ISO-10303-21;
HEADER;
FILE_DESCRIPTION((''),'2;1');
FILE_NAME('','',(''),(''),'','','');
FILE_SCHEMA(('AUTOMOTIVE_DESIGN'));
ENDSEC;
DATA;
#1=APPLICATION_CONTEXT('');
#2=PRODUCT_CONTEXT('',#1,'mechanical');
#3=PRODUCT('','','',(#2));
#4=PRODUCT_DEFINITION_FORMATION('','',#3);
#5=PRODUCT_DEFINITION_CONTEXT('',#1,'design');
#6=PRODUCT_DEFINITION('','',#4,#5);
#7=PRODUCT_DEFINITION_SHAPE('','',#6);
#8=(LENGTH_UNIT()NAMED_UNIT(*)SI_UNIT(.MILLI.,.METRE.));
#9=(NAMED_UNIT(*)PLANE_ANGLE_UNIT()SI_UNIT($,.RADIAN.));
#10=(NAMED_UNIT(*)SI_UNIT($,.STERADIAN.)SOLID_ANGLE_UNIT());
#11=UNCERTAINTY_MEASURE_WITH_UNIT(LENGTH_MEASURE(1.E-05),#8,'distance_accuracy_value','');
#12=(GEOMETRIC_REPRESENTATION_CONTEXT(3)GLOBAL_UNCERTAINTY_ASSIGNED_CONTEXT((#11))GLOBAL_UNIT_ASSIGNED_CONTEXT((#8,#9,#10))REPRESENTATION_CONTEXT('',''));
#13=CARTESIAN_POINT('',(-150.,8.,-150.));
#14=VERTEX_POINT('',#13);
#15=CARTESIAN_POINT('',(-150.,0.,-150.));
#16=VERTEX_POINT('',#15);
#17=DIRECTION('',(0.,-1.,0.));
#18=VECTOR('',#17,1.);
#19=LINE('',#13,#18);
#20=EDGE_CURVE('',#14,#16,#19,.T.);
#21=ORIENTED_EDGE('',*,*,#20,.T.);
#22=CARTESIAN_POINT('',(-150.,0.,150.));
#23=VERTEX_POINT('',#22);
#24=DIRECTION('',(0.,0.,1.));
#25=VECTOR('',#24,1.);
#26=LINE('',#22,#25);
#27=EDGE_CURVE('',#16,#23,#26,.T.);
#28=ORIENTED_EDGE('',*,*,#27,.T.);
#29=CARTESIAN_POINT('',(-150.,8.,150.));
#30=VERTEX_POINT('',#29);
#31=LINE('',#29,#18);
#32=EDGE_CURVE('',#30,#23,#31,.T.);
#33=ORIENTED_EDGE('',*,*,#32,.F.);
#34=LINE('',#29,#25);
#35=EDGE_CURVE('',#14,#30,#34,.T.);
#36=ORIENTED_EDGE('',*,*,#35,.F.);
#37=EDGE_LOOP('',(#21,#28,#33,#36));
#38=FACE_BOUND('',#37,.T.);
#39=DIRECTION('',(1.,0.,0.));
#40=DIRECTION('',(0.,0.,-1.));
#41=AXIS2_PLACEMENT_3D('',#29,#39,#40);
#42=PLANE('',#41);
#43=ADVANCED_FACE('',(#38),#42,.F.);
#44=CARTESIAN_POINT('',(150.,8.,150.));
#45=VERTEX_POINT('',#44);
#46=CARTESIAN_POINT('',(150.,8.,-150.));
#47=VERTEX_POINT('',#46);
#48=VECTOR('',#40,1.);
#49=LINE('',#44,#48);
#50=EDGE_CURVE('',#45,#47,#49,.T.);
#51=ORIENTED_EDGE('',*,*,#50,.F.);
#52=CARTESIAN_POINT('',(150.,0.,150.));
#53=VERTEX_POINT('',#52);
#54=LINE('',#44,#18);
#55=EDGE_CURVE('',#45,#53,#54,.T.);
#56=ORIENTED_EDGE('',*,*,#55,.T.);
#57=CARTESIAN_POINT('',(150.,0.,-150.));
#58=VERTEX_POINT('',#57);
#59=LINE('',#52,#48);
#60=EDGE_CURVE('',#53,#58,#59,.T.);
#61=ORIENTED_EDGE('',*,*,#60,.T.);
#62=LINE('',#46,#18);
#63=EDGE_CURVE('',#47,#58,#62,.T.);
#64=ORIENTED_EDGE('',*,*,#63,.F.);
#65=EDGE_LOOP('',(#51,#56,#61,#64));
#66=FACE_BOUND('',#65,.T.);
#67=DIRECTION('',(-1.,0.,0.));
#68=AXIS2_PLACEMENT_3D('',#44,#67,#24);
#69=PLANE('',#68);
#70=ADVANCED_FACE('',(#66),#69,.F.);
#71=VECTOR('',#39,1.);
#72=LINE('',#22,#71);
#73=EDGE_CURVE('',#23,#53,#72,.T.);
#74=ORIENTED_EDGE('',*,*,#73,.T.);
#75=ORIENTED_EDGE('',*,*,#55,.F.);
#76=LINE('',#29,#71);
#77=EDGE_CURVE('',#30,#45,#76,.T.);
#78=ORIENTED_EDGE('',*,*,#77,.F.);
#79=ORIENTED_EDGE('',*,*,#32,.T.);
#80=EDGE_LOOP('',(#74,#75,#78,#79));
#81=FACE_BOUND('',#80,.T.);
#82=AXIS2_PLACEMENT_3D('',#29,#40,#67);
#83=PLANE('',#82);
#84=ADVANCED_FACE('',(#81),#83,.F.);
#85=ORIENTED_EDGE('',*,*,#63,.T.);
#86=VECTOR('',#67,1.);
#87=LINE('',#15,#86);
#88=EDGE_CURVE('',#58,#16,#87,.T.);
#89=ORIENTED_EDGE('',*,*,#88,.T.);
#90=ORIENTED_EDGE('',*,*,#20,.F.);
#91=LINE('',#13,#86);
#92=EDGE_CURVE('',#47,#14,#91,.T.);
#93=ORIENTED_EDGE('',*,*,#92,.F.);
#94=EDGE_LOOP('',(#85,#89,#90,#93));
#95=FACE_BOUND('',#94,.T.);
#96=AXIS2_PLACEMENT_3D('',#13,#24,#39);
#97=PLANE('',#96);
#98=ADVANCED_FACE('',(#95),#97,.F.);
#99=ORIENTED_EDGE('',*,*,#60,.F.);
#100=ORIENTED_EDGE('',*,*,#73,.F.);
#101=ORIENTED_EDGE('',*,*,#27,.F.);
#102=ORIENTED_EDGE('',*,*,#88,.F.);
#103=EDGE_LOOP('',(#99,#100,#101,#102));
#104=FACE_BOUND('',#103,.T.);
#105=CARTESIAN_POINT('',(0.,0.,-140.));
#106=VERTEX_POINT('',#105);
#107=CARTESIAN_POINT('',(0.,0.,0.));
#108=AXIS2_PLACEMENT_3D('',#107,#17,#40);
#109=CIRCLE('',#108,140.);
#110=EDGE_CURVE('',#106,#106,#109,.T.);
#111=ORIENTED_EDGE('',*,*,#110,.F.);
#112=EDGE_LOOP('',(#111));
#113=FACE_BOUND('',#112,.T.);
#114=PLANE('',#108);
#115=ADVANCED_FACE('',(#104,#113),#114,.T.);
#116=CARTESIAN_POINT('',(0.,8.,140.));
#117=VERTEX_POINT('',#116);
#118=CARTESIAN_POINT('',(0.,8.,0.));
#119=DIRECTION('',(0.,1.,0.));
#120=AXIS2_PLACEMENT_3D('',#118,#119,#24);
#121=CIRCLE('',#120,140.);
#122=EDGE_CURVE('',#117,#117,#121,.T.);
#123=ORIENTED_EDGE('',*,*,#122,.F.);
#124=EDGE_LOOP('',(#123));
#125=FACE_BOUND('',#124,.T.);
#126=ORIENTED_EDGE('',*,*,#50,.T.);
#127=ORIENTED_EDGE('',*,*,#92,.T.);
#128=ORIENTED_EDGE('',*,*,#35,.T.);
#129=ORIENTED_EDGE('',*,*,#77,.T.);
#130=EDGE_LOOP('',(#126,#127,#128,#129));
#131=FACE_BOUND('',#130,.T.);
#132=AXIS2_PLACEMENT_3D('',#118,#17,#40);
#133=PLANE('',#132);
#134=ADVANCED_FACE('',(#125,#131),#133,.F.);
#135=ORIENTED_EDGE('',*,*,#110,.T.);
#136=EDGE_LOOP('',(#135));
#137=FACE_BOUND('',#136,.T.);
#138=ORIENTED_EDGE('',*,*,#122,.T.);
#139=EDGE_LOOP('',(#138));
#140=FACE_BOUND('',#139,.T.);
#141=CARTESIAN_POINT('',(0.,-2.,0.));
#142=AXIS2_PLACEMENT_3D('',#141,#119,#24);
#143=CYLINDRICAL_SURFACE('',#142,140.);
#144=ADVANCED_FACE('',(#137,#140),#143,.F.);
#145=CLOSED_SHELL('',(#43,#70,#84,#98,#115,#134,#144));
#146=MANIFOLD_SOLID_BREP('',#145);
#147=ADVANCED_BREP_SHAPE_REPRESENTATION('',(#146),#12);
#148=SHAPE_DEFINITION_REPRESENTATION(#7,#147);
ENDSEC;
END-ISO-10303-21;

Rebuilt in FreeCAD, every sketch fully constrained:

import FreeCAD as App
import Part
import Sketcher

V = App.Vector

doc = App.newDocument("Part")
body = doc.addObject("PartDesign::Body", "Body")

sketch1 = doc.addObject("Sketcher::SketchObject", "Sketch")
body.addObject(sketch1)
sketch1.AttachmentSupport = (doc.XZ_Plane, [""])
sketch1.MapMode = "FlatFace"
sketch1.addGeometry(Part.LineSegment(V(-150, -150, 0), V(-150, 150, 0)), False)
sketch1.addGeometry(Part.LineSegment(V(-150, 150, 0), V(150, 150, 0)), False)
sketch1.addGeometry(Part.LineSegment(V(150, 150, 0), V(150, -150, 0)), False)
sketch1.addGeometry(Part.LineSegment(V(150, -150, 0), V(-150, -150, 0)), False)
sketch1.addConstraint(Sketcher.Constraint("Coincident", 0, 2, 1, 1))
sketch1.addConstraint(Sketcher.Constraint("Coincident", 1, 2, 2, 1))
sketch1.addConstraint(Sketcher.Constraint("Coincident", 2, 2, 3, 1))
sketch1.addConstraint(Sketcher.Constraint("Coincident", 3, 2, 0, 1))
sketch1.addConstraint(Sketcher.Constraint("Vertical", 0))
sketch1.addConstraint(Sketcher.Constraint("Horizontal", 1))
sketch1.addConstraint(Sketcher.Constraint("Vertical", 2))
sketch1.addConstraint(Sketcher.Constraint("Horizontal", 3))
sketch1.addConstraint(Sketcher.Constraint("Symmetric", 0, 2, 2, 2, -1, 1))
sketch1.addConstraint(Sketcher.Constraint("Equal", 3, 0))
sketch1.addConstraint(Sketcher.Constraint("DistanceX", 1, 1, 1, 2, 300.0))
pad1 = doc.addObject("PartDesign::Pad", "Pad")
body.addObject(pad1)
pad1.Profile = sketch1
pad1.Length = 8
pad1.Reversed = True

sketch2 = doc.addObject("Sketcher::SketchObject", "Sketch001")
body.addObject(sketch2)
sketch2.AttachmentSupport = (doc.XZ_Plane, [""])
sketch2.MapMode = "FlatFace"
sketch2.AttachmentOffset = App.Placement(V(0, 0, -8), App.Rotation())
sketch2.addGeometry(Part.Circle(V(0, 0, 0), V(0, 0, 1), 140), False)
sketch2.addConstraint(Sketcher.Constraint("Coincident", 0, 3, -1, 1))
sketch2.addConstraint(Sketcher.Constraint("Diameter", 0, 280.0))
pocket1 = doc.addObject("PartDesign::Pocket", "Pocket")
body.addObject(pocket1)
pocket1.Profile = sketch2
pocket1.Length = 10
pocket1.Reversed = True

doc.recompute()
